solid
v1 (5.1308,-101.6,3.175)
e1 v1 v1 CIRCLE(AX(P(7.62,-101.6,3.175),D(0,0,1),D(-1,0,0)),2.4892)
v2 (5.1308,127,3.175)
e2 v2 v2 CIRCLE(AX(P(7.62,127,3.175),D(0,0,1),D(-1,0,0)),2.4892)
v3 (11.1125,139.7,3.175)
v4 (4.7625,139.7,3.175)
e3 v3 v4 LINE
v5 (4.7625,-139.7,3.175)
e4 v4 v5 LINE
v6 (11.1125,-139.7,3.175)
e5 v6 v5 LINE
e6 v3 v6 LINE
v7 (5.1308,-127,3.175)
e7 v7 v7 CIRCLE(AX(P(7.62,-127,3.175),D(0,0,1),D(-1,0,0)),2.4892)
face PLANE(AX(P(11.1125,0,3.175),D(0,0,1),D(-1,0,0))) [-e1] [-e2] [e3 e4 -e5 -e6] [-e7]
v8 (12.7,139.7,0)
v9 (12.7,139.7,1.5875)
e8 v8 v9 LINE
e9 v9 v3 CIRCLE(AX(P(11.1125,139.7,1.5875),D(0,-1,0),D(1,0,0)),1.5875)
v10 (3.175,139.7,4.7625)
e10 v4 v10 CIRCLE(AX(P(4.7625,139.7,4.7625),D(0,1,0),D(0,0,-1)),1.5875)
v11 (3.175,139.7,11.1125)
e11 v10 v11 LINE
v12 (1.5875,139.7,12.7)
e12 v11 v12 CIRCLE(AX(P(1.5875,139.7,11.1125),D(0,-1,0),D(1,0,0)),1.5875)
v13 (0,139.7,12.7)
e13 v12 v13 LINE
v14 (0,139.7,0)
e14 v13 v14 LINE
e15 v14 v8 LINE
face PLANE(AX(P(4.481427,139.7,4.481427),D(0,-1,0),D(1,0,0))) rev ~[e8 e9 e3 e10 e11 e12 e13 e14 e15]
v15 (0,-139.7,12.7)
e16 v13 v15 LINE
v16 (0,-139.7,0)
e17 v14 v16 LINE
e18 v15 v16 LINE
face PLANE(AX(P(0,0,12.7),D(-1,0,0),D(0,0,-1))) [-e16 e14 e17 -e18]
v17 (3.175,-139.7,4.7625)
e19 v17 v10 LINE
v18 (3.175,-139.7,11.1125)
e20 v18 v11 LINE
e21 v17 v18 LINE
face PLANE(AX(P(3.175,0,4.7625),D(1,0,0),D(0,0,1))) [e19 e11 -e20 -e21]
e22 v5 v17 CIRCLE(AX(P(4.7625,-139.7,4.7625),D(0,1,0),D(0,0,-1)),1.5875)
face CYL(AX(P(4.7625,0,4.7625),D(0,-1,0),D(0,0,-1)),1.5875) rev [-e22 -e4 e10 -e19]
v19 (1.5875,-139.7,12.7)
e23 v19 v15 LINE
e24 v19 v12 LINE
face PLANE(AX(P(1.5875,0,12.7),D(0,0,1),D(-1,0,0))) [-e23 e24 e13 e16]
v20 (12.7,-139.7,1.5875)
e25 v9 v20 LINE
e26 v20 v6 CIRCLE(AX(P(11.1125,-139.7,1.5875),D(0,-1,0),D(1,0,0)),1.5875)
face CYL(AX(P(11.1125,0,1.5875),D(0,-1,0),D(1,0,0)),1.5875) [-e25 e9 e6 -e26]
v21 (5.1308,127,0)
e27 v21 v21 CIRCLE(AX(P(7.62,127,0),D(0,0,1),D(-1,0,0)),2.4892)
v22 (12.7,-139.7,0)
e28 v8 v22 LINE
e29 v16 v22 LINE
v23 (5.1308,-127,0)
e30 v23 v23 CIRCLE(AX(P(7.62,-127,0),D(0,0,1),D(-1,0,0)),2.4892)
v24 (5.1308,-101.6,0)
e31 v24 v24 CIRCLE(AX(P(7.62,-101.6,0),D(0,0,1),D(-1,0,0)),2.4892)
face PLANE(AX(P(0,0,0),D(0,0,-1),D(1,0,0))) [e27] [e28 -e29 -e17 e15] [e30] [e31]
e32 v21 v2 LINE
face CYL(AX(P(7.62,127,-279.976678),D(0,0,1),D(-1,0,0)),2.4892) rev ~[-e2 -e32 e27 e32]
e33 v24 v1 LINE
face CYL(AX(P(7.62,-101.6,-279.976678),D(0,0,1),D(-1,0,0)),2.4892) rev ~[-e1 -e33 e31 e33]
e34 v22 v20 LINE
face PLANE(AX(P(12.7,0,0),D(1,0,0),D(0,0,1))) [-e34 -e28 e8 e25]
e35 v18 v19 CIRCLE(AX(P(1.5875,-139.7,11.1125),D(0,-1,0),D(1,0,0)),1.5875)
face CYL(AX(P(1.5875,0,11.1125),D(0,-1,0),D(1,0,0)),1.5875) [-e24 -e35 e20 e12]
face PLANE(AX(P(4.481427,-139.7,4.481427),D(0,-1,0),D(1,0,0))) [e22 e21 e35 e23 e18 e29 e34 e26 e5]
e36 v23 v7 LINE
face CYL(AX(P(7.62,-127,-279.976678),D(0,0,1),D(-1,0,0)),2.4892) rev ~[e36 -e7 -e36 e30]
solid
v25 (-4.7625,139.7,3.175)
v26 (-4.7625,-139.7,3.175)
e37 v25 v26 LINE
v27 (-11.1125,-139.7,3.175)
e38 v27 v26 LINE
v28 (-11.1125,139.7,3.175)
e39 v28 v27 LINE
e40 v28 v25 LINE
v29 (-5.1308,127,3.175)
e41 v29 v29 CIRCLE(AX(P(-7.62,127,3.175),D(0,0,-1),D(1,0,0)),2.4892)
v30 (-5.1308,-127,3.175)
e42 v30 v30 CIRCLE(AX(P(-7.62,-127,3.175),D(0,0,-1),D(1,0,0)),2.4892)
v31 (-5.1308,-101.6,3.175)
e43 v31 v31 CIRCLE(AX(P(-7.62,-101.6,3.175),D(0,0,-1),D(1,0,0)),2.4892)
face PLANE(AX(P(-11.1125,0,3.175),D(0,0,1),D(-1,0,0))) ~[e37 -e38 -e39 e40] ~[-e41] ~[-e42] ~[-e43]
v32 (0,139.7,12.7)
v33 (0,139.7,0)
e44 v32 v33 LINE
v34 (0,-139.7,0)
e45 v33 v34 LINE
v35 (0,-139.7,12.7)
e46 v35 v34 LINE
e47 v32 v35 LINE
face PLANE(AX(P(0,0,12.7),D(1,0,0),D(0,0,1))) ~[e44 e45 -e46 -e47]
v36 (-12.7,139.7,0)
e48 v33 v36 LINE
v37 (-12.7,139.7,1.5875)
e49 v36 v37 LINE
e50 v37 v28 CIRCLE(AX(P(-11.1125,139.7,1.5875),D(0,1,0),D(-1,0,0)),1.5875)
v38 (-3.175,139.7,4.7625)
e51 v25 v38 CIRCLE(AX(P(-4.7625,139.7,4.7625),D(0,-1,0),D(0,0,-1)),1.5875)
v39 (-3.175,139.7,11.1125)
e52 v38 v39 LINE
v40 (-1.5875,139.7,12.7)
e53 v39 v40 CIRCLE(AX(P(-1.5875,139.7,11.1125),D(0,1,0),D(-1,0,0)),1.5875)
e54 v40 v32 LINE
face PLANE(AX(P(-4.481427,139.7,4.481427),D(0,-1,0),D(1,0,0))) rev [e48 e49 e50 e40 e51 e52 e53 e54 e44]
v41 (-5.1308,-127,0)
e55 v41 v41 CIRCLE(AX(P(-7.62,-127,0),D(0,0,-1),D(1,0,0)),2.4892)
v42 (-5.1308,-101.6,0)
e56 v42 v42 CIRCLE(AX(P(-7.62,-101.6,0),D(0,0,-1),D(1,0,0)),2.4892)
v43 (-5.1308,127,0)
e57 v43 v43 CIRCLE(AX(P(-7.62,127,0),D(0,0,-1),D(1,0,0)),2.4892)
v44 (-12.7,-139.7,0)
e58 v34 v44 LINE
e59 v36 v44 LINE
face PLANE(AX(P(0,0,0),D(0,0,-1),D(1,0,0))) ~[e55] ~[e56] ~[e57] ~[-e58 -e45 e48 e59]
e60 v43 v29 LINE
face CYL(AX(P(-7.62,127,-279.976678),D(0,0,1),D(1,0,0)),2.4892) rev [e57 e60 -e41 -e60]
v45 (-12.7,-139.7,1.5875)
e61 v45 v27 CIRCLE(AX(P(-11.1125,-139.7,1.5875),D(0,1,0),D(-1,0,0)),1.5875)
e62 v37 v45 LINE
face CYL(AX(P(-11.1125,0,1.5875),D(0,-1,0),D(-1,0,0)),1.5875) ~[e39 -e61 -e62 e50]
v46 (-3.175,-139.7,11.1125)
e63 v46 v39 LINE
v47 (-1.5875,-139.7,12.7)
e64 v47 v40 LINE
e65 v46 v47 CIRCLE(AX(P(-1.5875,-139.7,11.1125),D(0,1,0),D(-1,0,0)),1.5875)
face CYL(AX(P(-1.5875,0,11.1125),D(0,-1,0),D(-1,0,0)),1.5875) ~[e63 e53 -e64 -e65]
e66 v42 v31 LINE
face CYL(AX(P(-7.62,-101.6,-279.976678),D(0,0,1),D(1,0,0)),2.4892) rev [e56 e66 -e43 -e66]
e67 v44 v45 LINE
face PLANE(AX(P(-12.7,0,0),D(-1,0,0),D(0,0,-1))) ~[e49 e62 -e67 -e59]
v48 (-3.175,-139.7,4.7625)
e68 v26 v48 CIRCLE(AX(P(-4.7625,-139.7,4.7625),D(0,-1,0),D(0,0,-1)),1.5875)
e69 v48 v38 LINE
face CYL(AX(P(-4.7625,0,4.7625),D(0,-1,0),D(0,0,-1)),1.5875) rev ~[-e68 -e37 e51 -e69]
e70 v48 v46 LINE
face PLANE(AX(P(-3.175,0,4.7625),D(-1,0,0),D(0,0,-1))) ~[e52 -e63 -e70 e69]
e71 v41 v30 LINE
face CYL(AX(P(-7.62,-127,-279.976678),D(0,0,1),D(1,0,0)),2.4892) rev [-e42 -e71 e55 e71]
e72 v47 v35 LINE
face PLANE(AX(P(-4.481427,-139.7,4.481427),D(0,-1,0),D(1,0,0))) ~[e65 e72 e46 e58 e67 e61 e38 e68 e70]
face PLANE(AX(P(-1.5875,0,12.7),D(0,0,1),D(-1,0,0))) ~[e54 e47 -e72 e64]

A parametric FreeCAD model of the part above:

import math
import FreeCAD as App
import Part
import Sketcher
Q = App.Units.Quantity

doc = App.newDocument("Part")
body = doc.addObject("PartDesign::Body", "Body")

sketch1 = body.newObject("Sketcher::SketchObject", "Sketch")
sketch1.AttachmentSupport = (doc.getObject("XZ_Plane"), [""])
sketch1.MapMode = "FlatFace"
sketch1.addGeometry([
    Part.LineSegment(App.Vector(1.5875, 12.7, 0), App.Vector(0, 12.7, 0)),
    Part.LineSegment(App.Vector(0, 12.7, 0), App.Vector(0, 0, 0)),
    Part.LineSegment(App.Vector(0, 0, 0), App.Vector(12.7, 0, 0)),
    Part.LineSegment(App.Vector(12.7, 0, 0), App.Vector(12.7, 1.5875, 0)),
    Part.ArcOfCircle(Part.Circle(App.Vector(11.1125, 1.5875, 0), App.Vector(0, 0, 1), 1.5875), math.radians(0), math.radians(90)),
    Part.LineSegment(App.Vector(11.1125, 3.175, 0), App.Vector(4.7625, 3.175, 0)),
    Part.ArcOfCircle(Part.Circle(App.Vector(4.7625, 4.7625, 0), App.Vector(0, 0, 1), 1.5875), math.radians(180), math.radians(270)),
    Part.LineSegment(App.Vector(3.175, 4.7625, 0), App.Vector(3.175, 11.1125, 0)),
    Part.ArcOfCircle(Part.Circle(App.Vector(1.5875, 11.1125, 0), App.Vector(0, 0, 1), 1.5875), math.radians(0), math.radians(90)),
], False)
sketch1.addConstraint([
    Sketcher.Constraint("Coincident", 0, 2, 1, 1),
    Sketcher.Constraint("Coincident", 1, 2, 2, 1),
    Sketcher.Constraint("Coincident", 2, 2, 3, 1),
    Sketcher.Constraint("Tangent", 3, 2, 4, 1),
    Sketcher.Constraint("Tangent", 4, 2, 5, 1),
    Sketcher.Constraint("Tangent", 5, 2, 6, 2),
    Sketcher.Constraint("Tangent", 6, 1, 7, 1),
    Sketcher.Constraint("Tangent", 7, 2, 8, 1),
    Sketcher.Constraint("Tangent", 8, 2, 0, 1),
    Sketcher.Constraint("Horizontal", 0),
    Sketcher.Constraint("Vertical", 1),
    Sketcher.Constraint("Horizontal", 2),
    Sketcher.Constraint("Vertical", 3),
    Sketcher.Constraint("Horizontal", 5),
    Sketcher.Constraint("Vertical", 7),
    Sketcher.Constraint("Coincident", 1, 2, -1, 1),
    Sketcher.Constraint("Equal", 4, 6),
    Sketcher.Constraint("Equal", 6, 8),
    Sketcher.Constraint("Equal", 2, 1),
    Sketcher.Constraint("Equal", 0, 3),
    Sketcher.Constraint("DistanceX", 2, 1, 2, 2, Q("0.5 in")),
    Sketcher.Constraint("Radius", 4, Q("0.0625 in")),
    Sketcher.Constraint("DistanceX", 5, 2, 5, 1, Q("0.25 in")),
])
pad1 = body.newObject("PartDesign::Pad", "Pad")
pad1.Profile = sketch1
pad1.Length = Q("11 in")
pad1.Midplane = True

sketch2 = body.newObject("Sketcher::SketchObject", "Sketch001")
sketch2.AttachmentSupport = (doc.getObject("XY_Plane"), [""])
sketch2.MapMode = "FlatFace"
sketch2.addGeometry([
    Part.Circle(App.Vector(7.62, 127, 0), App.Vector(0, 0, 1), 2.4892),
    Part.Circle(App.Vector(7.62, -101.6, 0), App.Vector(0, 0, 1), 2.4892),
    Part.Circle(App.Vector(7.62, -127, 0), App.Vector(0, 0, 1), 2.4892),
], False)
sketch2.addConstraint([
    Sketcher.Constraint("Equal", 0, 1),
    Sketcher.Constraint("Equal", 1, 2),
    Sketcher.Constraint("Symmetric", 0, 3, 2, 3, -1),
    Sketcher.Constraint("Vertical", 0, 3, 1, 3),
    Sketcher.Constraint("Diameter", 0, Q("0.196 in")),
    Sketcher.Constraint("DistanceY", -1, 1, 0, 3, Q("5 in")),
    Sketcher.Constraint("DistanceY", 1, 3, -1, 1, Q("4 in")),
    Sketcher.Constraint("DistanceX", -1, 1, 0, 3, Q("0.3 in")),
])
doc.recompute()
hole = body.newObject("PartDesign::Hole", "Hole")
hole.Profile = sketch2
hole.ThreadType = "None"
hole.Diameter = Q("0.196 in")
hole.DepthType = "ThroughAll"
hole.Reversed = True
body2 = doc.addObject("PartDesign::Body", "Body001")
doc.recompute()

mirroring = doc.addObject("Part::Mirroring", "Mirroring")
mirroring.Source = body
mirroring.Base = App.Vector(0, 0, 0)
mirroring.Normal = App.Vector(1, 0, 0)
body2.BaseFeature = mirroring
doc.recompute()
mirroring.Visibility = False

doc.recompute()
